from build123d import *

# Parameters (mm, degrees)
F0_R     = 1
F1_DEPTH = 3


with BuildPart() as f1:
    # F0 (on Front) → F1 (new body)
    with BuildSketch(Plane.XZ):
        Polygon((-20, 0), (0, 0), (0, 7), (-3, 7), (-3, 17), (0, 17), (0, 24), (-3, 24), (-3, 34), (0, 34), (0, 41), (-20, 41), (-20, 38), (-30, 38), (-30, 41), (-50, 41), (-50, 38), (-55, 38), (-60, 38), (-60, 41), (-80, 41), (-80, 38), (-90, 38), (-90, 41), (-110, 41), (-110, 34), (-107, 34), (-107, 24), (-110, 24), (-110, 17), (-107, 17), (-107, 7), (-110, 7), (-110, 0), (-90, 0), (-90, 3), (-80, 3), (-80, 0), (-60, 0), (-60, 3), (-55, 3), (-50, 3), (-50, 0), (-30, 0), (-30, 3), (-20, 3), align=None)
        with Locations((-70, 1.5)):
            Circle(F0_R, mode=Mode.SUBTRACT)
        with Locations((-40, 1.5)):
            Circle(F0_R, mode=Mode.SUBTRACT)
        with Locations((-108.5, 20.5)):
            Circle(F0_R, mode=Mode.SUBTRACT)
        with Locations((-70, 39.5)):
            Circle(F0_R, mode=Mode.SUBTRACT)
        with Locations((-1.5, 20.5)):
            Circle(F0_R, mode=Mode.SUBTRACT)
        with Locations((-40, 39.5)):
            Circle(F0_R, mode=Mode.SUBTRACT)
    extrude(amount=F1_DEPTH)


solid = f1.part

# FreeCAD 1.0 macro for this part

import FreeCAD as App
import Part
import Sketcher
Q = App.Units.Quantity


def add_polygon(sketch, points):
    """Adds a closed chain of lines whose ends are joined by coincident constraints."""
    first, n = sketch.GeometryCount, len(points)
    for a, b in zip(points, points[1:] + points[:1]):
        sketch.addGeometry(Part.LineSegment(App.Vector(*a, 0), App.Vector(*b, 0)), False)
    for i in range(n):
        sketch.addConstraint(Sketcher.Constraint("Coincident", first + i, 2, first + (i + 1) % n, 1))

doc = App.newDocument("Part")
body = doc.addObject("PartDesign::Body", "Body")

sketch1 = body.newObject("Sketcher::SketchObject", "Sketch")
sketch1.AttachmentSupport = (doc.getObject("XZ_Plane"), [""])
sketch1.MapMode = "FlatFace"
add_polygon(sketch1, [(-20, 0), (0, 0), (0, 7), (-3, 7), (-3, 17), (0, 17), (0, 24), (-3, 24), (-3, 34), (0, 34), (0, 41), (-20, 41), (-20, 38), (-30, 38), (-30, 41), (-50, 41), (-50, 38), (-60, 38), (-60, 41), (-80, 41), (-80, 38), (-90, 38), (-90, 41), (-110, 41), (-110, 34), (-107, 34), (-107, 24), (-110, 24), (-110, 17), (-107, 17), (-107, 7), (-110, 7), (-110, 0), (-90, 0), (-90, 3), (-80, 3), (-80, 0), (-60, 0), (-60, 3), (-50, 3), (-50, 0), (-30, 0), (-30, 3), (-20, 3)])
sketch1.addGeometry(Part.Circle(App.Vector(-70, 1.5, 0), App.Vector(0, 0, 1), 1), False)
sketch1.addGeometry(Part.Circle(App.Vector(-40, 1.5, 0), App.Vector(0, 0, 1), 1), False)
sketch1.addGeometry(Part.Circle(App.Vector(-108.5, 20.5, 0), App.Vector(0, 0, 1), 1), False)
sketch1.addGeometry(Part.Circle(App.Vector(-70, 39.5, 0), App.Vector(0, 0, 1), 1), False)
sketch1.addGeometry(Part.Circle(App.Vector(-1.5, 20.5, 0), App.Vector(0, 0, 1), 1), False)
sketch1.addGeometry(Part.Circle(App.Vector(-40, 39.5, 0), App.Vector(0, 0, 1), 1), False)
sketch1.addConstraint([
    Sketcher.Constraint("Horizontal", 0),
    Sketcher.Constraint("Vertical", 1),
    Sketcher.Constraint("Horizontal", 2),
    Sketcher.Constraint("Vertical", 3),
    Sketcher.Constraint("Horizontal", 4),
    Sketcher.Constraint("Vertical", 5),
    Sketcher.Constraint("Horizontal", 6),
    Sketcher.Constraint("Vertical", 7),
    Sketcher.Constraint("Horizontal", 8),
    Sketcher.Constraint("Vertical", 9),
    Sketcher.Constraint("Horizontal", 10),
    Sketcher.Constraint("Vertical", 11),
    Sketcher.Constraint("Horizontal", 12),
    Sketcher.Constraint("Vertical", 13),
    Sketcher.Constraint("Horizontal", 14),
    Sketcher.Constraint("Vertical", 15),
    Sketcher.Constraint("Horizontal", 16),
    Sketcher.Constraint("Vertical", 17),
    Sketcher.Constraint("Horizontal", 18),
    Sketcher.Constraint("Vertical", 19),
    Sketcher.Constraint("Horizontal", 20),
    Sketcher.Constraint("Vertical", 21),
    Sketcher.Constraint("Horizontal", 22),
    Sketcher.Constraint("Vertical", 23),
    Sketcher.Constraint("Horizontal", 24),
    Sketcher.Constraint("Vertical", 25),
    Sketcher.Constraint("Horizontal", 26),
    Sketcher.Constraint("Vertical", 27),
    Sketcher.Constraint("Horizontal", 28),
    Sketcher.Constraint("Vertical", 29),
    Sketcher.Constraint("Horizontal", 30),
    Sketcher.Constraint("Vertical", 31),
    Sketcher.Constraint("Horizontal", 32),
    Sketcher.Constraint("Vertical", 33),
    Sketcher.Constraint("Horizontal", 34),
    Sketcher.Constraint("Vertical", 35),
    Sketcher.Constraint("Horizontal", 36),
    Sketcher.Constraint("Vertical", 37),
    Sketcher.Constraint("Horizontal", 38),
    Sketcher.Constraint("Vertical", 39),
    Sketcher.Constraint("Horizontal", 40),
    Sketcher.Constraint("Vertical", 41),
    Sketcher.Constraint("Horizontal", 42),
    Sketcher.Constraint("Vertical", 43),
    Sketcher.Constraint("Coincident", 0, 2, -1, 1),
    Sketcher.Constraint("Equal", 44, 45),
    Sketcher.Constraint("Equal", 45, 46),
    Sketcher.Constraint("Equal", 46, 47),
    Sketcher.Constraint("Equal", 47, 48),
    Sketcher.Constraint("Equal", 48, 49),
    Sketcher.Constraint("PointOnObject", 4, 2, -2),
    Sketcher.Constraint("PointOnObject", 8, 2, -2),
    Sketcher.Constraint("PointOnObject", 31, 2, -1),
    Sketcher.Constraint("PointOnObject", 35, 2, -1),
    Sketcher.Constraint("PointOnObject", 39, 2, -1),
    Sketcher.Constraint("Horizontal", 44, 3, 45, 3),
    Sketcher.Constraint("Horizontal", 46, 3, 48, 3),
    Sketcher.Constraint("Horizontal", 47, 3, 49, 3),
    Sketcher.Constraint("Horizontal", 10, 2, 13, 2),
    Sketcher.Constraint("Horizontal", 12, 2, 15, 2),
    Sketcher.Constraint("Horizontal", 14, 2, 17, 2),
    Sketcher.Constraint("Horizontal", 16, 2, 19, 2),
    Sketcher.Constraint("Horizontal", 18, 2, 21, 2),
    Sketcher.Constraint("Horizontal", 8, 2, 23, 2),
    Sketcher.Constraint("Horizontal", 6, 2, 25, 2),
    Sketcher.Constraint("Horizontal", 4, 2, 27, 2),
    Sketcher.Constraint("Horizontal", 2, 2, 29, 2),
    Sketcher.Constraint("Horizontal", 34, 2, 37, 2),
    Sketcher.Constraint("Horizontal", 38, 2, 41, 2),
    Sketcher.Constraint("Vertical", 44, 3, 47, 3),
    Sketcher.Constraint("Vertical", 45, 3, 49, 3),
    Sketcher.Constraint("Vertical", 3, 2, 6, 2),
    Sketcher.Constraint("Vertical", 23, 2, 26, 2),
    Sketcher.Constraint("Vertical", 25, 2, 28, 2),
    Sketcher.Constraint("Vertical", 27, 2, 30, 2),
    Sketcher.Constraint("Vertical", 21, 2, 32, 2),
    Sketcher.Constraint("Vertical", 19, 2, 34, 2),
    Sketcher.Constraint("Vertical", 17, 2, 36, 2),
    Sketcher.Constraint("Vertical", 15, 2, 38, 2),
    Sketcher.Constraint("Vertical", 13, 2, 40, 2),
    Sketcher.Constraint("Vertical", 11, 2, 42, 2),
    Sketcher.Constraint("Equal", 10, 14),
    Sketcher.Constraint("Equal", 12, 16),
    Sketcher.Constraint("Equal", 14, 18),
    Sketcher.Constraint("Equal", 16, 20),
    Sketcher.Constraint("Equal", 18, 22),
    Sketcher.Constraint("Equal", 8, 24),
    Sketcher.Constraint("Equal", 42, 3),
    Sketcher.Constraint("Equal", 1, 5),
    Sketcher.Constraint("Equal", 3, 7),
    Sketcher.Constraint("Equal", 5, 9),
    Sketcher.Constraint("Equal", 30, 11),
    Sketcher.Constraint("Equal", 21, 33),
    Sketcher.Constraint("Diameter", 44, Q("2 mm")),
    Sketcher.Constraint("DistanceX", 0, 1, 0, 2, Q("20 mm")),
    Sketcher.Constraint("DistanceX", 2, 2, 2, 1, Q("3 mm")),
    Sketcher.Constraint("DistanceX", 12, 2, 12, 1, Q("10 mm")),
    Sketcher.Constraint("DistanceY", 1, 1, 1, 2, Q("7 mm")),
    Sketcher.Constraint("DistanceX", 44, 3, -1, 1, Q("70 mm")),
    Sketcher.Constraint("DistanceX", 45, 3, -1, 1, Q("40 mm")),
    Sketcher.Constraint("DistanceY", 44, 3, 46, 3, Q("19 mm")),
    Sketcher.Constraint("DistanceY", 44, 3, 47, 3, Q("38 mm")),
    Sketcher.Constraint("DistanceX", 46, 3, 48, 3, Q("107 mm")),
    Sketcher.Constraint("DistanceY", -1, 1, 44, 3, Q("1.5 mm")),
    Sketcher.Constraint("DistanceX", 46, 3, -1, 1, Q("108.5 mm")),
])
pad1 = body.newObject("PartDesign::Pad", "Pad")
pad1.Profile = sketch1
pad1.Length = 3

doc.recompute()
